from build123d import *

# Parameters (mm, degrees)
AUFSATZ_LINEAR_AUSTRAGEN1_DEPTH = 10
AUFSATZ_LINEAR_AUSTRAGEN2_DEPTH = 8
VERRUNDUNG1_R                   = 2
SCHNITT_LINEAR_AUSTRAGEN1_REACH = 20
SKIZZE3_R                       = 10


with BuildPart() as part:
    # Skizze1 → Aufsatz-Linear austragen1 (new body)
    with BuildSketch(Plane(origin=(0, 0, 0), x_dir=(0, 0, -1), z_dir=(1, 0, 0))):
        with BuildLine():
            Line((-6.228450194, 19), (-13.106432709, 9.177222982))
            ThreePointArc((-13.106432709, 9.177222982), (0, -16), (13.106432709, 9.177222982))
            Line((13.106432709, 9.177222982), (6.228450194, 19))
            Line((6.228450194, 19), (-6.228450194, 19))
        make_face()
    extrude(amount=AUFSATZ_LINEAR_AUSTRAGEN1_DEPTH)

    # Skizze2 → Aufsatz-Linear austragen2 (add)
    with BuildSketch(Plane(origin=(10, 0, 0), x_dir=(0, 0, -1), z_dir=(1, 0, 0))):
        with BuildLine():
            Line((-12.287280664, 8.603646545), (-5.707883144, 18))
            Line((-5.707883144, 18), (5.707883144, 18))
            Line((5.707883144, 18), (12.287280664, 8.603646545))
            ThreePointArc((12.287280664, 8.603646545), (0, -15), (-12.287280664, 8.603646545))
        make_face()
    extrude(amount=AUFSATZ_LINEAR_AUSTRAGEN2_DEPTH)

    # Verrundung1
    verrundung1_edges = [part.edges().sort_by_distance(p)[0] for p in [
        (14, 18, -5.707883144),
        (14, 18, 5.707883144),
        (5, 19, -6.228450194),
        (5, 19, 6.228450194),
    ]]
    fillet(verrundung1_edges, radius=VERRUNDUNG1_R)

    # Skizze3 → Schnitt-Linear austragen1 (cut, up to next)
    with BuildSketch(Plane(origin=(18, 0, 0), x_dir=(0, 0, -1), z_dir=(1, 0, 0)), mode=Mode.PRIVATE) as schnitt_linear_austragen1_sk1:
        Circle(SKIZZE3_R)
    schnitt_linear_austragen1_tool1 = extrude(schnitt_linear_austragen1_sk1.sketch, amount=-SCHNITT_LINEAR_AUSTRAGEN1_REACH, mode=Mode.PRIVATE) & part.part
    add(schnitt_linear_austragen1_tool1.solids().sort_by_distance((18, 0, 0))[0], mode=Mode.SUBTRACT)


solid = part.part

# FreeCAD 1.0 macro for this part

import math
import FreeCAD as App
import Part
import Sketcher
from FreeCAD import Vector
Q = App.Units.Quantity


def edges_at(feature, points):
    """Names of the edges that pass closest to the given points."""
    edges = feature.Shape.Edges
    near = lambda p: min(range(len(edges)), key=lambda i: edges[i].distToShape(Part.Vertex(*p))[0])
    return sorted({f"Edge{near(p) + 1}" for p in points})

doc = App.newDocument("Part")
body = doc.addObject("PartDesign::Body", "Body")

sketch1 = body.newObject("Sketcher::SketchObject", "Sketch")
sketch1.AttachmentSupport = (doc.getObject("YZ_Plane"), [""])
sketch1.MapMode = "FlatFace"
sketch1.addGeometry(Part.LineSegment(Vector(19, 6, 0), Vector(9, 13, 0)), False)
sketch1.addGeometry(Part.ArcOfCircle(Part.Circle(Vector(0, 0, 0), Vector(0, 0, 1), 16), math.radians(55), math.radians(305)), False)
sketch1.addGeometry(Part.LineSegment(Vector(9, -13, 0), Vector(19, -6, 0)), False)
sketch1.addGeometry(Part.LineSegment(Vector(19, -6, 0), Vector(19, 6, 0)), False)
sketch1.addConstraint(Sketcher.Constraint("Tangent", 0, 2, 1, 1))
sketch1.addConstraint(Sketcher.Constraint("Tangent", 1, 2, 2, 1))
sketch1.addConstraint(Sketcher.Constraint("Coincident", 2, 2, 3, 1))
sketch1.addConstraint(Sketcher.Constraint("Coincident", 3, 2, 0, 1))
sketch1.addConstraint(Sketcher.Constraint("Vertical", 3))
sketch1.addConstraint(Sketcher.Constraint("Coincident", 1, 3, -1, 1))
sketch1.addConstraint(Sketcher.Constraint("Vertical", 0, 2, 1, 2))
sketch1.addConstraint(Sketcher.Constraint("Radius", 1, Q("16 mm")))
sketch1.addConstraint(Sketcher.Constraint("Angle", 0, Q("145 deg")))
sketch1.addConstraint(Sketcher.Constraint("DistanceX", -1, 1, 2, 2, Q("19 mm")))
pad1 = body.newObject("PartDesign::Pad", "Pad")
pad1.Profile = sketch1
pad1.Length = 10

sketch2 = body.newObject("Sketcher::SketchObject", "Sketch001")
sketch2.AttachmentSupport = (doc.getObject("YZ_Plane"), [""])
sketch2.MapMode = "FlatFace"
sketch2.AttachmentOffset = App.Placement(Vector(0, 0, 10), App.Rotation())
sketch2.addGeometry(Part.LineSegment(Vector(18, 6, 0), Vector(9, 12, 0)), False)
sketch2.addGeometry(Part.ArcOfCircle(Part.Circle(Vector(0, 0, 0), Vector(0, 0, 1), 15), math.radians(55), math.radians(305)), False)
sketch2.addGeometry(Part.LineSegment(Vector(9, -12, 0), Vector(18, -6, 0)), False)
sketch2.addGeometry(Part.LineSegment(Vector(18, -6, 0), Vector(18, 6, 0)), False)
sketch2.addConstraint(Sketcher.Constraint("Tangent", 0, 2, 1, 1))
sketch2.addConstraint(Sketcher.Constraint("Tangent", 1, 2, 2, 1))
sketch2.addConstraint(Sketcher.Constraint("Coincident", 2, 2, 3, 1))
sketch2.addConstraint(Sketcher.Constraint("Coincident", 3, 2, 0, 1))
sketch2.addConstraint(Sketcher.Constraint("Vertical", 3))
sketch2.addConstraint(Sketcher.Constraint("Coincident", 1, 3, -1, 1))
sketch2.addConstraint(Sketcher.Constraint("Vertical", 0, 2, 1, 2))
sketch2.addConstraint(Sketcher.Constraint("Radius", 1, Q("15 mm")))
sketch2.addConstraint(Sketcher.Constraint("Angle", 0, Q("145 deg")))
sketch2.addConstraint(Sketcher.Constraint("DistanceX", -1, 1, 2, 2, Q("18 mm")))
pad2 = body.newObject("PartDesign::Pad", "Pad001")
pad2.Profile = sketch2
pad2.Length = 8
doc.recompute()

fillet = body.newObject("PartDesign::Fillet", "Fillet")
fillet.Base = (pad2, edges_at(pad2, [
    (14, 18, -5.708),
    (14, 18, 5.708),
    (5, 19, -6.228),
    (5, 19, 6.228),
]))
fillet.Radius = 2

sketch3 = body.newObject("Sketcher::SketchObject", "Sketch002")
sketch3.AttachmentSupport = (doc.getObject("YZ_Plane"), [""])
sketch3.MapMode = "FlatFace"
sketch3.AttachmentOffset = App.Placement(Vector(0, 0, 18), App.Rotation())
sketch3.addGeometry(Part.Circle(Vector(0, 0, 0), Vector(0, 0, 1), 10), False)
sketch3.addConstraint(Sketcher.Constraint("Coincident", 0, 3, -1, 1))
sketch3.addConstraint(Sketcher.Constraint("Diameter", 0, Q("20 mm")))
pocket1 = body.newObject("PartDesign::Pocket", "Pocket")
pocket1.Profile = sketch3
pocket1.Type = "UpToFirst"

doc.recompute()
